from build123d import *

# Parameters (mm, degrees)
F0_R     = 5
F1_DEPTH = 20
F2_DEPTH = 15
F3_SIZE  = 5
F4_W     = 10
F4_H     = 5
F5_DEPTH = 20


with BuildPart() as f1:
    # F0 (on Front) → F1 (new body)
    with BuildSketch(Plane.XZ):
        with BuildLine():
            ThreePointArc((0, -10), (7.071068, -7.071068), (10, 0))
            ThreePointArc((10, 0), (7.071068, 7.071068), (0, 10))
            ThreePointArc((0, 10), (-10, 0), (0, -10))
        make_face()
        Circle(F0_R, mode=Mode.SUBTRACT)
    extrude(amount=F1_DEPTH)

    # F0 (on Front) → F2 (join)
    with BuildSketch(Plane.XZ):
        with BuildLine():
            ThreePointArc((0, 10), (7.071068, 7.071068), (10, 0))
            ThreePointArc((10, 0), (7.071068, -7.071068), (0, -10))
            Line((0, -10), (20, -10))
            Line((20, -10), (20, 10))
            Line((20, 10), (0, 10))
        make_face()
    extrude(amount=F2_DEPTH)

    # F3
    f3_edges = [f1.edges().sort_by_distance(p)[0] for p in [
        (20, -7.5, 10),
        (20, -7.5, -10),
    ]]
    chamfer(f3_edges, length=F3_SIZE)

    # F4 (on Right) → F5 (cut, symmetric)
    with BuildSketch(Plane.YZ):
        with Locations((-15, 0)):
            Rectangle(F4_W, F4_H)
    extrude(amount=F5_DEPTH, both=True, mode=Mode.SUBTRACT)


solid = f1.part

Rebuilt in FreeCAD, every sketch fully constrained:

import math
import FreeCAD as App
import Part
import Sketcher

V = App.Vector


def edges_at(feature, points):
    """Names of the edges that pass closest to the given points."""
    edges = feature.Shape.Edges
    near = lambda p: min(range(len(edges)), key=lambda i: edges[i].distToShape(Part.Vertex(*p))[0])
    return sorted({f"Edge{near(p) + 1}" for p in points})


def add_polygon(sketch, points):
    """Adds a closed chain of lines whose ends are joined by coincident constraints."""
    first, n = sketch.GeometryCount, len(points)
    for a, b in zip(points, points[1:] + points[:1]):
        sketch.addGeometry(Part.LineSegment(App.Vector(*a, 0), App.Vector(*b, 0)), False)
    for i in range(n):
        sketch.addConstraint(Sketcher.Constraint("Coincident", first + i, 2, first + (i + 1) % n, 1))

doc = App.newDocument("Part")
body = doc.addObject("PartDesign::Body", "Body")

# Sketch on XZ plane
sketch1 = body.newObject("Sketcher::SketchObject", "Sketch")
sketch1.AttachmentSupport = (doc.getObject("XZ_Plane"), [""])
sketch1.MapMode = "FlatFace"
sketch1.addGeometry([
    Part.ArcOfCircle(Part.Circle(V(0, 0, 0), V(0, 0, 1), 10), math.radians(-90), math.radians(0)),
    Part.ArcOfCircle(Part.Circle(V(0, 0, 0), V(0, 0, 1), 10), math.radians(0), math.radians(90)),
    Part.ArcOfCircle(Part.Circle(V(0, 0, 0), V(0, 0, 1), 10), math.radians(90), math.radians(270)),
    Part.Circle(V(0, 0, 0), V(0, 0, 1), 5),
], False)
sketch1.addConstraint([
    Sketcher.Constraint("Tangent", 0, 2, 1, 1),
    Sketcher.Constraint("Tangent", 1, 2, 2, 1),
    Sketcher.Constraint("Tangent", 2, 2, 0, 1),
    Sketcher.Constraint("Coincident", 0, 3, -1, 1),
    Sketcher.Constraint("Coincident", 3, 3, -1, 1),
    Sketcher.Constraint("PointOnObject", 0, 2, -1),
    Sketcher.Constraint("PointOnObject", 1, 2, -2),
    Sketcher.Constraint("PointOnObject", 2, 2, -2),
    Sketcher.Constraint("Diameter", 3, 10.0),
    Sketcher.Constraint("Radius", 0, 9.999999),
])
pad1 = body.newObject("PartDesign::Pad", "Pad")
pad1.Profile = sketch1
pad1.Length = 20

# Sketch on XZ plane
sketch2 = body.newObject("Sketcher::SketchObject", "Sketch001")
sketch2.AttachmentSupport = (doc.getObject("XZ_Plane"), [""])
sketch2.MapMode = "FlatFace"
sketch2.addGeometry([
    Part.ArcOfCircle(Part.Circle(V(0, 0, 0), V(0, 0, 1), 10), math.radians(0), math.radians(90)),  # 0
    Part.ArcOfCircle(Part.Circle(V(0, 0, 0), V(0, 0, 1), 10), math.radians(-90), math.radians(0)),  # 1
    Part.LineSegment(V(0, -10, 0), V(20, -10, 0)),  # 2
    Part.LineSegment(V(20, -10, 0), V(20, 10, 0)),  # 3
    Part.LineSegment(V(20, 10, 0), V(0, 10, 0)),  # 4
], False)
sketch2.addConstraint([
    Sketcher.Constraint("Tangent", 0, 1, 1, 2),
    Sketcher.Constraint("Tangent", 1, 1, 2, 1),
    Sketcher.Constraint("Coincident", 2, 2, 3, 1),
    Sketcher.Constraint("Coincident", 3, 2, 4, 1),
    Sketcher.Constraint("Tangent", 4, 2, 0, 2),
    Sketcher.Constraint("Horizontal", 2),
    Sketcher.Constraint("Vertical", 3),
    Sketcher.Constraint("Horizontal", 4),
    Sketcher.Constraint("Coincident", 0, 3, -1, 1),
    Sketcher.Constraint("Equal", 0, 1),
    Sketcher.Constraint("PointOnObject", 0, 1, -1),
    Sketcher.Constraint("Equal", 4, 3),
    Sketcher.Constraint("Radius", 0, 9.999999),
])
pad2 = body.newObject("PartDesign::Pad", "Pad001")
pad2.Profile = sketch2
pad2.Length = 15
doc.recompute()

chamfer = body.newObject("PartDesign::Chamfer", "Chamfer")
chamfer.Base = (pad2, edges_at(pad2, [(20, -7.5, 10), (20, -7.5, -10)]))
chamfer.Size = 5

# Sketch on YZ plane
sketch3 = body.newObject("Sketcher::SketchObject", "Sketch002")
sketch3.AttachmentSupport = (doc.getObject("YZ_Plane"), [""])
sketch3.MapMode = "FlatFace"
add_polygon(sketch3, [(-20, 2), (-20, -2), (-10, -2), (-10, 2)])  # lines 0-3
sketch3.addConstraint([
    Sketcher.Constraint("Vertical", 0),
    Sketcher.Constraint("Horizontal", 1),
    Sketcher.Constraint("Vertical", 2),
    Sketcher.Constraint("Horizontal", 3),
    Sketcher.Constraint("DistanceX", 1, 1, 1, 2, 10.0),
    Sketcher.Constraint("DistanceY", 0, 2, 0, 1, 5.0),
    Sketcher.Constraint("DistanceX", 0, 2, -1, 1, 20.0),
    Sketcher.Constraint("DistanceY", 0, 2, -1, 1, 2.5),
])
pocket1 = body.newObject("PartDesign::Pocket", "Pocket")
pocket1.Profile = sketch3
pocket1.Length = 40
pocket1.Midplane = True

doc.recompute()
